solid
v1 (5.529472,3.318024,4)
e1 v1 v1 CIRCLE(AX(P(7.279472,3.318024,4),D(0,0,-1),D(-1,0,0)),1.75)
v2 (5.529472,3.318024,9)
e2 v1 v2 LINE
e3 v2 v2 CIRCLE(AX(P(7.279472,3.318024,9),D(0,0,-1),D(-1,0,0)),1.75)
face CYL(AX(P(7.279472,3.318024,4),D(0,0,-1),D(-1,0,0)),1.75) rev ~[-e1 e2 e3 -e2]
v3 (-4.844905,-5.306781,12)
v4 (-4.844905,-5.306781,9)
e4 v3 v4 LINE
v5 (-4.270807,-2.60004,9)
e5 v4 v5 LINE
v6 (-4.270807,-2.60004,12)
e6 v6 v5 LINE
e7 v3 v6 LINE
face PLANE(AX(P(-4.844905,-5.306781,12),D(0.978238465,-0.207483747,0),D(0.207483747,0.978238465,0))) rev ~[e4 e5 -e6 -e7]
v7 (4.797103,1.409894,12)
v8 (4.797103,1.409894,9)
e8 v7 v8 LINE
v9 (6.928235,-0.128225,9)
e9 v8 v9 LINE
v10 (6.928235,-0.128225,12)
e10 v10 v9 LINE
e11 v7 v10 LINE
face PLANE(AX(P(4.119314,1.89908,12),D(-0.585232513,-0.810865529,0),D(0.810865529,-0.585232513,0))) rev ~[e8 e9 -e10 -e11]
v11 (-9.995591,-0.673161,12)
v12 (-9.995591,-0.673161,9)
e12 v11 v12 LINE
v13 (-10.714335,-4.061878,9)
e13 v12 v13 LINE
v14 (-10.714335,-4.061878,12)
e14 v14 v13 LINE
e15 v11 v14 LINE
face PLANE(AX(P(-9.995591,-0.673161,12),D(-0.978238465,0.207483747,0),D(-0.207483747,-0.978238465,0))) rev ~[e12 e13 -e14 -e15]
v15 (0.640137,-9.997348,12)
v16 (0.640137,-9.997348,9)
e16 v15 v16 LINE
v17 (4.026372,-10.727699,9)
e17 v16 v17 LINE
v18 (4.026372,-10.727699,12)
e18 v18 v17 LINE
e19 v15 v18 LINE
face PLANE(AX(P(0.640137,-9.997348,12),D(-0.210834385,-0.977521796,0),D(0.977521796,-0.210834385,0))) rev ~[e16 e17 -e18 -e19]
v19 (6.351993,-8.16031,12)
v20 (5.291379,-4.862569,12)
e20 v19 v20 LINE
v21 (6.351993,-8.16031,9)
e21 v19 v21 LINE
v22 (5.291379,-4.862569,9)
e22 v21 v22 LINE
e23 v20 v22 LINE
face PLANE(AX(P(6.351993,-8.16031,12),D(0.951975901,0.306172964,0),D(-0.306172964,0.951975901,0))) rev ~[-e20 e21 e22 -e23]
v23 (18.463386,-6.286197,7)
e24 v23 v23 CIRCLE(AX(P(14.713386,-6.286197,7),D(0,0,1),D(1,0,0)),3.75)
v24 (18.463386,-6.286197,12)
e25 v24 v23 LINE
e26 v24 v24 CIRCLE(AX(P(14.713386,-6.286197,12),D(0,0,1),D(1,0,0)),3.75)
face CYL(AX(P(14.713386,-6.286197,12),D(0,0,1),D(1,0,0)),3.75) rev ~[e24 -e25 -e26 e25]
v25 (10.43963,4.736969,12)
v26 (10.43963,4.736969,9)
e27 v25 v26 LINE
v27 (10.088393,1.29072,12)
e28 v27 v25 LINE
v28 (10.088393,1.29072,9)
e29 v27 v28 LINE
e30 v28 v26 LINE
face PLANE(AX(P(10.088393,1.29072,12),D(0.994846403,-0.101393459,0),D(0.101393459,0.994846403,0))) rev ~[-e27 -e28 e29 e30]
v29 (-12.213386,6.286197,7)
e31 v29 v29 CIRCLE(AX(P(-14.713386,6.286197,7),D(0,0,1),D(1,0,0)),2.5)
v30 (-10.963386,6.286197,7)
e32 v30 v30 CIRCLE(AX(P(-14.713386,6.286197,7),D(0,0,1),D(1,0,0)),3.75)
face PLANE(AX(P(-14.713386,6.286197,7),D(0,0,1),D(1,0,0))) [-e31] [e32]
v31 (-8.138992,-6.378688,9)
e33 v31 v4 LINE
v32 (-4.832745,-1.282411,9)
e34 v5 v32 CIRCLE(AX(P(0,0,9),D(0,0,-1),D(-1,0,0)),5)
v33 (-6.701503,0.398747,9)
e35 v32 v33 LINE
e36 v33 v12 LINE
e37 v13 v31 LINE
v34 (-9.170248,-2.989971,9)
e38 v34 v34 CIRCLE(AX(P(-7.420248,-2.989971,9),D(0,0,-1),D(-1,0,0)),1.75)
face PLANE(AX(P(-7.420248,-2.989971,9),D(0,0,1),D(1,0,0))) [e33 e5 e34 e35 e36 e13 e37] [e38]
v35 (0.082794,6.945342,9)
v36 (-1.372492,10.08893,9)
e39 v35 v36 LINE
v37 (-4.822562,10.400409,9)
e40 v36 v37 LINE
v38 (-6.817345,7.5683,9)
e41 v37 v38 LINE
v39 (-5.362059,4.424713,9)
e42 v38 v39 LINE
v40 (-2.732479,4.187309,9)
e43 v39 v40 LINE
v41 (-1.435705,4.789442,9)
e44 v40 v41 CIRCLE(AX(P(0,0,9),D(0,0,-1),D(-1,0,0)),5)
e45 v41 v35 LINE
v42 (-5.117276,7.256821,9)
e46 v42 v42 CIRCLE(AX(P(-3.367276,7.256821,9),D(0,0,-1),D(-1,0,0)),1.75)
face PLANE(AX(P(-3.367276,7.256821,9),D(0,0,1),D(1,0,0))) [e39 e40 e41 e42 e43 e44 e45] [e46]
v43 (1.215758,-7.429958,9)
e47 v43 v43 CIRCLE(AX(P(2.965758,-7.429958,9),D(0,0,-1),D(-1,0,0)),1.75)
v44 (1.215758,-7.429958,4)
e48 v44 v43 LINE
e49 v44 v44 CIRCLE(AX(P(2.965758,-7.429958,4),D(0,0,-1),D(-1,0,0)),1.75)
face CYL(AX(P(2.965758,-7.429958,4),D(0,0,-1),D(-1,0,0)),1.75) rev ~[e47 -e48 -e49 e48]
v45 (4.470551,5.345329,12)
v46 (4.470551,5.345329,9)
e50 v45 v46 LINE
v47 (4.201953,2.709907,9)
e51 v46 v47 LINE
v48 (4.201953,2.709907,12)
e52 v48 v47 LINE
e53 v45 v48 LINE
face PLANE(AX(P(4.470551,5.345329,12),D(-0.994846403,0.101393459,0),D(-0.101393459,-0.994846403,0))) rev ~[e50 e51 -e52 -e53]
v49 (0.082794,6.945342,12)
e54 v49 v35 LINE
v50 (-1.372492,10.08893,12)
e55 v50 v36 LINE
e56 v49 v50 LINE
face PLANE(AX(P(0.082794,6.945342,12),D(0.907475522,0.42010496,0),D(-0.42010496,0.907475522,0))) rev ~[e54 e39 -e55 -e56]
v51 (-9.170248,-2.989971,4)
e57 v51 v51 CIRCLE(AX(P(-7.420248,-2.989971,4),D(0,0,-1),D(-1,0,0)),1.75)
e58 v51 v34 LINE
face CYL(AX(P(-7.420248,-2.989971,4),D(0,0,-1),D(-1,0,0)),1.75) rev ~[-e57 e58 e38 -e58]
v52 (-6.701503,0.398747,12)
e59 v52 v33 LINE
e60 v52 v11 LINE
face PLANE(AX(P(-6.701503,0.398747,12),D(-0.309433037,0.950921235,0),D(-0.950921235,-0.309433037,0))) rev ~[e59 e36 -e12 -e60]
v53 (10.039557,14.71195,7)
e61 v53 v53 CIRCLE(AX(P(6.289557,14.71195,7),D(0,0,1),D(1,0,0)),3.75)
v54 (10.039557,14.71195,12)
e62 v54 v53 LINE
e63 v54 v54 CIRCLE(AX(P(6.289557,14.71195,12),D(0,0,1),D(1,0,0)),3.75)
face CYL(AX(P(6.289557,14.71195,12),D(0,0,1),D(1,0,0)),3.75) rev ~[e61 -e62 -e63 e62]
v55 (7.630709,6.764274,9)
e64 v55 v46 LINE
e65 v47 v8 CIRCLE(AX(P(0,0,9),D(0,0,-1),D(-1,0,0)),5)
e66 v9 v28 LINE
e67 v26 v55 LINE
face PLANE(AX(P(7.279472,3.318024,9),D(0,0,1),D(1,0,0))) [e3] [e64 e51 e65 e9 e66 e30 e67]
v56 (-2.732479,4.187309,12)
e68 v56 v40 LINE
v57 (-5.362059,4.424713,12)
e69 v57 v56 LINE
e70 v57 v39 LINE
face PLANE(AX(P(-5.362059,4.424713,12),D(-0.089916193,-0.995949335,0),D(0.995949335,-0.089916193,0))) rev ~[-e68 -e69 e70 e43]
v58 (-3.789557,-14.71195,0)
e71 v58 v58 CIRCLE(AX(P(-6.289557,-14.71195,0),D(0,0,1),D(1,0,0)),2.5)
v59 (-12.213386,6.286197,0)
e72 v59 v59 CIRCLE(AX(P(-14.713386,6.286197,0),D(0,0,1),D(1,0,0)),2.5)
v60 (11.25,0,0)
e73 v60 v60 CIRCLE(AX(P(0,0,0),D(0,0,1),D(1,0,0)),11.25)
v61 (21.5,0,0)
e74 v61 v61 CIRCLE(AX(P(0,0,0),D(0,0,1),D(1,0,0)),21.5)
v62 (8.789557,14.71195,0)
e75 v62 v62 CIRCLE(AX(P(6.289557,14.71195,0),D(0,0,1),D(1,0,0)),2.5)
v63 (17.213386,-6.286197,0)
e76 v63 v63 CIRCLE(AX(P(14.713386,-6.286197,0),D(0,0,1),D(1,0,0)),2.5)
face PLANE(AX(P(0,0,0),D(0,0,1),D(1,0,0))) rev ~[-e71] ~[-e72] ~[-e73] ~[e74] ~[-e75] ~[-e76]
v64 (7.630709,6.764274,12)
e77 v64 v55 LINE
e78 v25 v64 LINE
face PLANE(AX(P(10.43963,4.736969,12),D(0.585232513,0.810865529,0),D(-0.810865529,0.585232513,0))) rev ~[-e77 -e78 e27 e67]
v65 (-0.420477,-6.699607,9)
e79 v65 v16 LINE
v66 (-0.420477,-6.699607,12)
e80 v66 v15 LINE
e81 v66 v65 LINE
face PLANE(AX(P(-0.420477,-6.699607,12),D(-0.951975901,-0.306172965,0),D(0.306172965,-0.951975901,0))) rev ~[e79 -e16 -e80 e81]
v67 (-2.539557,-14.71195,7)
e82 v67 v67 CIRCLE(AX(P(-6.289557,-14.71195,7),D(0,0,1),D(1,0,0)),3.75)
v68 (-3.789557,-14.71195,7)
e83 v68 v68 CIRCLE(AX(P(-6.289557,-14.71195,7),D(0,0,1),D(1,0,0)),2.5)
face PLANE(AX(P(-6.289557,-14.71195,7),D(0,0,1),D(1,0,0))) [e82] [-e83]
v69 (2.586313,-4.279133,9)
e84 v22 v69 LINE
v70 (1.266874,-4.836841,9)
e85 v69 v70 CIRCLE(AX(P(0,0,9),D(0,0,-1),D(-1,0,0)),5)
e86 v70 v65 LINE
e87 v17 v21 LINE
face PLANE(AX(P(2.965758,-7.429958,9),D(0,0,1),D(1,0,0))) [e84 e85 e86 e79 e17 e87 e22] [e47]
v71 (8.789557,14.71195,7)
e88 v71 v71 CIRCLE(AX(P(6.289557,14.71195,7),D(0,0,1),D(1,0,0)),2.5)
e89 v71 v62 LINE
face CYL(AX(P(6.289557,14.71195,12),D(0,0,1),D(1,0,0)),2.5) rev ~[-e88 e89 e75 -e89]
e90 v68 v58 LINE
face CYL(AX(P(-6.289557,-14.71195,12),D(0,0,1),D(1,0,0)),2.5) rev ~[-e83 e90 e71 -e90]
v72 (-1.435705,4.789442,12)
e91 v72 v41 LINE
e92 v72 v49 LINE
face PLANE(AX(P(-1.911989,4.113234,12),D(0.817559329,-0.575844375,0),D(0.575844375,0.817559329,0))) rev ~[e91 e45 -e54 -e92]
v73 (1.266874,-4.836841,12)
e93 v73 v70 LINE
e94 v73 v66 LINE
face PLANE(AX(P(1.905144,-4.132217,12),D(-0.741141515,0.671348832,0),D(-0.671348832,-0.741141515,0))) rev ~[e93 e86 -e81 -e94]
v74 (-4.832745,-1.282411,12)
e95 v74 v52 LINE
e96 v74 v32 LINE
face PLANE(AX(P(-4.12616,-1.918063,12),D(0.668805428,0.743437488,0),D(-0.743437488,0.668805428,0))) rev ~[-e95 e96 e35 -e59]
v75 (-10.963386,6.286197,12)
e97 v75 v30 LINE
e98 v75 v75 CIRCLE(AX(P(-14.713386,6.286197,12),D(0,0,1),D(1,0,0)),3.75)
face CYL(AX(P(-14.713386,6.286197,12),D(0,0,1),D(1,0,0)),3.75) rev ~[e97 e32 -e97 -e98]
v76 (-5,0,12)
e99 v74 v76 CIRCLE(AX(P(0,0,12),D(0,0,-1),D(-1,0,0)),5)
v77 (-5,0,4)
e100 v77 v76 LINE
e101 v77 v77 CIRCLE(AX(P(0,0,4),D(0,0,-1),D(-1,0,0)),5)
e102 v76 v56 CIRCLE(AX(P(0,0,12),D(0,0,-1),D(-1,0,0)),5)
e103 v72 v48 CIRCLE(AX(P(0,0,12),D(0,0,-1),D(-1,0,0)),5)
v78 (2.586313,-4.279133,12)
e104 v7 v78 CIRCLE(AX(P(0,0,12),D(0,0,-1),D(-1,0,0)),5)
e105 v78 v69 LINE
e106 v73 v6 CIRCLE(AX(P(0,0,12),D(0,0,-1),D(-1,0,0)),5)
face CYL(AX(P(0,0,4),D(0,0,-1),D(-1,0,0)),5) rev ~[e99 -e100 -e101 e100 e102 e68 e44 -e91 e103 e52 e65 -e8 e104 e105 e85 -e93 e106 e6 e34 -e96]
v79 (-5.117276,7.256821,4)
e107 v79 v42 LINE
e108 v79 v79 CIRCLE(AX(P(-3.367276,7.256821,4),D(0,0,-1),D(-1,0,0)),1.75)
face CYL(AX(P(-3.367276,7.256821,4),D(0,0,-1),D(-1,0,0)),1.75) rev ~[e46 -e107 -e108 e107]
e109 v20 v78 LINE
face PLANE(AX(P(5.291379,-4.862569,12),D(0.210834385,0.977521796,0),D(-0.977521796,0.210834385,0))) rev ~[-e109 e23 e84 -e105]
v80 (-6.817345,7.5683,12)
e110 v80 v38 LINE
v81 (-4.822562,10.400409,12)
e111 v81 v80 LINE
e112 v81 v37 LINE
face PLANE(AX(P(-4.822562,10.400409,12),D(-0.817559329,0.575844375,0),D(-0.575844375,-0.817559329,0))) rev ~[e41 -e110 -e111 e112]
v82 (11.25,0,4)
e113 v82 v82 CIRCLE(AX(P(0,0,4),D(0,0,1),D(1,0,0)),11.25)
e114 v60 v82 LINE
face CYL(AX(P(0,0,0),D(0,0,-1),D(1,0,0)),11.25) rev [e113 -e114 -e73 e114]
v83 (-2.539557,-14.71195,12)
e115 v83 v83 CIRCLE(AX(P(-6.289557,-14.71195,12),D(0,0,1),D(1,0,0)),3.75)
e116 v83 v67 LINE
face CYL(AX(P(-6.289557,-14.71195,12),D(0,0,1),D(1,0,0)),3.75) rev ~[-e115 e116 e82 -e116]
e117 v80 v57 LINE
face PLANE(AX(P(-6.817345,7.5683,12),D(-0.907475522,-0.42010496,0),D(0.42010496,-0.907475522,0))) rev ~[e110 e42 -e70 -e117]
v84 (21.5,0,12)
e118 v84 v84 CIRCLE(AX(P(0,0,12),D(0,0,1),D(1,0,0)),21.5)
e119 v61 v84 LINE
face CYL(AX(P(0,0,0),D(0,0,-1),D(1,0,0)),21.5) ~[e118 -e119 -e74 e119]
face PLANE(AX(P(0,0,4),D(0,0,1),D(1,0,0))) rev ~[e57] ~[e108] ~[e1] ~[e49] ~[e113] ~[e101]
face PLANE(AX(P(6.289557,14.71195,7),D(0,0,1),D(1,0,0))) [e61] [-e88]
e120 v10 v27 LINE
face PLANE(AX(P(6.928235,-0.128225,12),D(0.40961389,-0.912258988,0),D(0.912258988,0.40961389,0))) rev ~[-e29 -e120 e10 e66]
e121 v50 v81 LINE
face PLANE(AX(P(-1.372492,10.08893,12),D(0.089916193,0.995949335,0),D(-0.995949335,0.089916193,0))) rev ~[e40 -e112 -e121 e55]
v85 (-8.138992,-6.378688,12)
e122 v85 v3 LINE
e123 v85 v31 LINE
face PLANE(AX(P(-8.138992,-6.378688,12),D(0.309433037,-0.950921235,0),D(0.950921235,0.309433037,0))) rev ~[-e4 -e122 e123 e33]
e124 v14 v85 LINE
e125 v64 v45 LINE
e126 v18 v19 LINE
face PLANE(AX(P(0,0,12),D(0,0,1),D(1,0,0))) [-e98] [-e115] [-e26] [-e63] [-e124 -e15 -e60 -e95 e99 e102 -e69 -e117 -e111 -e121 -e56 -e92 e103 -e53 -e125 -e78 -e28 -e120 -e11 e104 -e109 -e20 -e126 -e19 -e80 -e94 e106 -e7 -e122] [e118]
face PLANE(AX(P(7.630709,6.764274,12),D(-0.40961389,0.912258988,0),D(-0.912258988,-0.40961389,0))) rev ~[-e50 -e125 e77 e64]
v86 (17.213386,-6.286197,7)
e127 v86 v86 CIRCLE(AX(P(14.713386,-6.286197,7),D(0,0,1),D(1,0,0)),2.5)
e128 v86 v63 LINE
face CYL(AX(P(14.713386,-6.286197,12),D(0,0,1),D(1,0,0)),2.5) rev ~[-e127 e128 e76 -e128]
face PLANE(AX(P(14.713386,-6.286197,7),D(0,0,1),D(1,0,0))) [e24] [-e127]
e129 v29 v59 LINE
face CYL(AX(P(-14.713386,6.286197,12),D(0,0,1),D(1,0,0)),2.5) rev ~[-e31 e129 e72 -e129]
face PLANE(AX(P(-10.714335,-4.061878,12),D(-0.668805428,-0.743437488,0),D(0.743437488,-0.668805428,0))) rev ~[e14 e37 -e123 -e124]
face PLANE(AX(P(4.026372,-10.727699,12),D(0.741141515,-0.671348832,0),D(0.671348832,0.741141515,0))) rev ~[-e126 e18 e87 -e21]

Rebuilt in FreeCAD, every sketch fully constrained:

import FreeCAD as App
import Part
import Sketcher
Q = App.Units.Quantity


def add_polygon(sketch, points):
    """Adds a closed chain of lines whose ends are joined by coincident constraints."""
    first, n = sketch.GeometryCount, len(points)
    for a, b in zip(points, points[1:] + points[:1]):
        sketch.addGeometry(Part.LineSegment(App.Vector(*a, 0), App.Vector(*b, 0)), False)
    for i in range(n):
        sketch.addConstraint(Sketcher.Constraint("Coincident", first + i, 2, first + (i + 1) % n, 1))

doc = App.newDocument("Part")
body = doc.addObject("PartDesign::Body", "Body")

# Sketch on XY plane
sketch1 = doc.addObject("Sketcher::SketchObject", "Sketch")
body.addObject(sketch1)
sketch1.AttachmentSupport = (doc.XY_Plane, [""])
sketch1.MapMode = "FlatFace"
sketch1.addGeometry([
    Part.Circle(App.Vector(0, 0, 0), App.Vector(0, 0, 1), 22),
    Part.Circle(App.Vector(0, 0, 0), App.Vector(0, 0, 1), 11),
], False)
sketch1.addConstraint([
    Sketcher.Constraint("Coincident", 0, 3, -1, 1),
    Sketcher.Constraint("Coincident", 1, 3, -1, 1),
    Sketcher.Constraint("Diameter", 0, Q("43 mm")),
    Sketcher.Constraint("Diameter", 1, Q("22.5 mm")),
])
pad1 = doc.addObject("PartDesign::Pad", "Pad")
body.addObject(pad1)
pad1.Profile = sketch1
pad1.Length = 12

# Sketch on XY plane
sketch2 = doc.addObject("Sketcher::SketchObject", "Sketch001")
body.addObject(sketch2)
sketch2.AttachmentSupport = (doc.XY_Plane, [""])
sketch2.MapMode = "FlatFace"
sketch2.AttachmentOffset = App.Placement(App.Vector(0, 0, 12), App.Rotation())
sketch2.addGeometry([
    Part.Circle(App.Vector(-14.7, 6.3, 0), App.Vector(0, 0, 1), 2.5),
    Part.Circle(App.Vector(6.3, 14.7, 0), App.Vector(0, 0, 1), 2.5),
    Part.Circle(App.Vector(14.7, -6.3, 0), App.Vector(0, 0, 1), 2.5),
    Part.Circle(App.Vector(-6.3, -14.7, 0), App.Vector(0, 0, 1), 2.5),
], False)
sketch2.addConstraint([
    Sketcher.Constraint("Equal", 0, 1),
    Sketcher.Constraint("Equal", 1, 2),
    Sketcher.Constraint("Equal", 2, 3),
    Sketcher.Constraint("Symmetric", 0, 3, 2, 3, -1, 1),
    Sketcher.Constraint("Symmetric", 1, 3, 3, 3, -1, 1),
    Sketcher.Constraint("Diameter", 0, Q("5 mm")),
    Sketcher.Constraint("DistanceY", 3, 3, 1, 3, Q("29.4239 mm")),
    Sketcher.Constraint("DistanceX", 1, 3, 2, 3, Q("8.423829 mm")),
    Sketcher.Constraint("DistanceX", 0, 3, 2, 3, Q("29.426772 mm")),
    Sketcher.Constraint("DistanceY", -1, 1, 0, 3, Q("6.286197 mm")),
])
pocket1 = doc.addObject("PartDesign::Pocket", "Pocket")
body.addObject(pocket1)
pocket1.Profile = sketch2
pocket1.Type = "ThroughAll"

# Sketch on XY plane
sketch3 = doc.addObject("Sketcher::SketchObject", "Sketch002")
body.addObject(sketch3)
sketch3.AttachmentSupport = (doc.XY_Plane, [""])
sketch3.MapMode = "FlatFace"
sketch3.AttachmentOffset = App.Placement(App.Vector(0, 0, 12), App.Rotation())
sketch3.addGeometry([
    Part.Circle(App.Vector(-6.3, -14.7, 0), App.Vector(0, 0, 1), 3.8),
    Part.Circle(App.Vector(14.7, -6.3, 0), App.Vector(0, 0, 1), 3.8),
    Part.Circle(App.Vector(6.3, 14.7, 0), App.Vector(0, 0, 1), 3.8),
    Part.Circle(App.Vector(-14.7, 6.3, 0), App.Vector(0, 0, 1), 3.8),
], False)
sketch3.addConstraint([
    Sketcher.Constraint("Equal", 0, 1),
    Sketcher.Constraint("Equal", 1, 2),
    Sketcher.Constraint("Equal", 2, 3),
    Sketcher.Constraint("Symmetric", 0, 3, 2, 3, -1, 1),
    Sketcher.Constraint("Symmetric", 1, 3, 3, 3, -1, 1),
    Sketcher.Constraint("Diameter", 0, Q("7.5 mm")),
    Sketcher.Constraint("DistanceY", 0, 3, 2, 3, Q("29.4239 mm")),
    Sketcher.Constraint("DistanceX", 2, 3, 1, 3, Q("8.423829 mm")),
    Sketcher.Constraint("DistanceX", 3, 3, 1, 3, Q("29.426772 mm")),
    Sketcher.Constraint("DistanceY", 1, 3, -1, 1, Q("6.286197 mm")),
])
pocket2 = doc.addObject("PartDesign::Pocket", "Pocket001")
body.addObject(pocket2)
pocket2.Profile = sketch3
pocket2.Length = 5

# Sketch on XY plane
sketch4 = doc.addObject("Sketcher::SketchObject", "Sketch003")
body.addObject(sketch4)
sketch4.AttachmentSupport = (doc.XY_Plane, [""])
sketch4.MapMode = "FlatFace"
sketch4.AttachmentOffset = App.Placement(App.Vector(0, 0, 4), App.Rotation())
sketch4.addGeometry(Part.Circle(App.Vector(0, 0, 0), App.Vector(0, 0, 1), 11), False)
sketch4.addConstraint([
    Sketcher.Constraint("Coincident", 0, 3, -1, 1),
    Sketcher.Constraint("Diameter", 0, Q("22.5 mm")),
])
pad2 = doc.addObject("PartDesign::Pad", "Pad001")
body.addObject(pad2)
pad2.Profile = sketch4
pad2.Length = 8

# Sketch on XY plane
sketch5 = doc.addObject("Sketcher::SketchObject", "Sketch004")
body.addObject(sketch5)
sketch5.AttachmentSupport = (doc.XY_Plane, [""])
sketch5.MapMode = "FlatFace"
sketch5.AttachmentOffset = App.Placement(App.Vector(0, 0, 4), App.Rotation())
sketch5.addGeometry(Part.Circle(App.Vector(0, 0, 0), App.Vector(0, 0, 1), 5), False)
sketch5.addConstraint([
    Sketcher.Constraint("Coincident", 0, 3, -1, 1),
    Sketcher.Constraint("Diameter", 0, Q("10 mm")),
])
pocket3 = doc.addObject("PartDesign::Pocket", "Pocket002")
body.addObject(pocket3)
pocket3.Profile = sketch5
pocket3.Length = 50
pocket3.Reversed = True

# Sketch on XY plane
sketch6 = doc.addObject("Sketcher::SketchObject", "Sketch005")
body.addObject(sketch6)
sketch6.AttachmentSupport = (doc.XY_Plane, [""])
sketch6.MapMode = "FlatFace"
sketch6.AttachmentOffset = App.Placement(App.Vector(0, 0, 4), App.Rotation())
sketch6.addGeometry([
    Part.Circle(App.Vector(-7.4, -3, 0), App.Vector(0, 0, 1), 1.8),
    Part.Circle(App.Vector(3, -7.4, 0), App.Vector(0, 0, 1), 1.8),
    Part.Circle(App.Vector(7.3, 3.3, 0), App.Vector(0, 0, 1), 1.8),
    Part.Circle(App.Vector(-3.4, 7.3, 0), App.Vector(0, 0, 1), 1.8),
], False)
sketch6.addConstraint([
    Sketcher.Constraint("Equal", 0, 1),
    Sketcher.Constraint("Equal", 1, 2),
    Sketcher.Constraint("Equal", 2, 3),
    Sketcher.Constraint("Diameter", 0, Q("3.5 mm")),
    Sketcher.Constraint("DistanceY", 0, 3, -1, 1, Q("2.989971 mm")),
    Sketcher.Constraint("DistanceX", -1, 1, 1, 3, Q("2.965758 mm")),
    Sketcher.Constraint("DistanceY", 1, 3, -1, 1, Q("7.429958 mm")),
    Sketcher.Constraint("DistanceY", -1, 1, 3, 3, Q("7.256821 mm")),
    Sketcher.Constraint("DistanceX", 0, 3, 2, 3, Q("14.69972 mm")),
    Sketcher.Constraint("DistanceX", 0, 3, 3, 3, Q("4.052972 mm")),
    Sketcher.Constraint("DistanceX", 0, 3, -1, 1, Q("7.420248 mm")),
    Sketcher.Constraint("DistanceY", -1, 1, 2, 3, Q("3.318024 mm")),
])
pocket4 = doc.addObject("PartDesign::Pocket", "Pocket003")
body.addObject(pocket4)
pocket4.Profile = sketch6
pocket4.Length = 11
pocket4.Reversed = True

# Sketch on XY plane
sketch7 = doc.addObject("Sketcher::SketchObject", "Sketch006")
body.addObject(sketch7)
sketch7.AttachmentSupport = (doc.XY_Plane, [""])
sketch7.MapMode = "FlatFace"
sketch7.AttachmentOffset = App.Placement(App.Vector(0, 0, 12), App.Rotation())
add_polygon(sketch7, [(-6.817345, 7.5683), (-5.362059, 4.424713), (-1.911989, 4.113234), (0.082794, 6.945342), (-1.372492, 10.08893), (-4.822562, 10.400409)])  # lines 0-5
add_polygon(sketch7, [(7.630709, 6.764274), (4.470551, 5.345329), (4.119314, 1.89908), (6.928235, -0.128225), (10.088393, 1.29072), (10.43963, 4.736969)])  # lines 6-11
add_polygon(sketch7, [(6.351993, -8.16031), (5.291379, -4.862569), (1.905144, -4.132217), (-0.420477, -6.699607), (0.640137, -9.997348), (4.026372, -10.727699)])  # lines 12-17
add_polygon(sketch7, [(-6.701503, 0.398747), (-9.995591, -0.673161), (-10.714335, -4.061878), (-8.138992, -6.378688), (-4.844905, -5.306781), (-4.12616, -1.918063)])  # lines 18-23
sketch7.addConstraint([
    Sketcher.Constraint("Distance", 0, Q("3.464102 mm")),
    Sketcher.Constraint("Distance", 1, Q("3.464102 mm")),
    Sketcher.Constraint("Distance", 2, Q("3.464102 mm")),
    Sketcher.Constraint("Distance", 3, Q("3.464102 mm")),
    Sketcher.Constraint("Distance", 4, Q("3.464102 mm")),
    Sketcher.Constraint("Distance", 5, Q("3.464102 mm")),
    Sketcher.Constraint("Distance", 6, Q("3.464102 mm")),
    Sketcher.Constraint("Distance", 7, Q("3.464102 mm")),
    Sketcher.Constraint("Distance", 8, Q("3.464102 mm")),
    Sketcher.Constraint("Distance", 9, Q("3.464102 mm")),
    Sketcher.Constraint("Distance", 10, Q("3.464102 mm")),
    Sketcher.Constraint("Distance", 11, Q("3.464102 mm")),
    Sketcher.Constraint("Distance", 12, Q("3.464102 mm")),
    Sketcher.Constraint("Distance", 13, Q("3.464102 mm")),
    Sketcher.Constraint("Distance", 14, Q("3.464102 mm")),
    Sketcher.Constraint("Distance", 15, Q("3.464102 mm")),
    Sketcher.Constraint("Distance", 16, Q("3.464102 mm")),
    Sketcher.Constraint("Distance", 17, Q("3.464102 mm")),
    Sketcher.Constraint("Distance", 18, Q("3.464102 mm")),
    Sketcher.Constraint("Distance", 19, Q("3.464102 mm")),
    Sketcher.Constraint("Distance", 20, Q("3.464102 mm")),
    Sketcher.Constraint("Distance", 21, Q("3.464102 mm")),
    Sketcher.Constraint("Distance", 22, Q("3.464102 mm")),
    Sketcher.Constraint("Distance", 23, Q("3.464102 mm")),
    Sketcher.Constraint("DistanceY", -1, 1, 5, 2, Q("7.5683 mm")),
    Sketcher.Constraint("DistanceY", 16, 2, -1, 1, Q("10.727699 mm")),
    Sketcher.Constraint("DistanceY", 6, 2, 3, 2, Q("4.743601 mm")),
    Sketcher.Constraint("DistanceX", 2, 2, 9, 2, Q("10.005599 mm")),
    Sketcher.Constraint("DistanceY", 8, 2, 11, 2, Q("6.892498 mm")),
    Sketcher.Constraint("DistanceY", 12, 2, 6, 2, Q("10.207898 mm")),
    Sketcher.Constraint("DistanceX", 18, 2, 1, 2, Q("8.083601 mm")),
    Sketcher.Constraint("DistanceX", 18, 2, 20, 2, Q("1.856598 mm")),
    Sketcher.Constraint("DistanceX", 23, 2, 21, 2, Q("1.856598 mm")),
    Sketcher.Constraint("DistanceX", 0, 2, -1, 1, Q("5.362059 mm")),
    Sketcher.Constraint("DistanceX", 1, 2, -1, 1, Q("1.911989 mm")),
    Sketcher.Constraint("DistanceY", -1, 1, 3, 2, Q("10.08893 mm")),
    Sketcher.Constraint("DistanceX", 4, 2, -1, 1, Q("4.822562 mm")),
    Sketcher.Constraint("DistanceY", -1, 1, 4, 2, Q("10.400409 mm")),
    Sketcher.Constraint("DistanceX", -1, 1, 6, 2, Q("4.470551 mm")),
    Sketcher.Constraint("DistanceY", -1, 1, 7, 2, Q("1.89908 mm")),
    Sketcher.Constraint("DistanceY", -1, 1, 9, 2, Q("1.29072 mm")),
    Sketcher.Constraint("DistanceX", -1, 1, 12, 2, Q("5.291379 mm")),
    Sketcher.Constraint("DistanceY", 17, 2, -1, 1, Q("8.16031 mm")),
    Sketcher.Constraint("DistanceY", 18, 2, -1, 1, Q("0.673161 mm")),
    Sketcher.Constraint("DistanceY", 19, 2, -1, 1, Q("4.061878 mm")),
    Sketcher.Constraint("DistanceY", 21, 2, -1, 1, Q("5.306781 mm")),
    Sketcher.Constraint("DistanceY", 12, 2, 13, 2, Q("0.730352 mm")),
    Sketcher.Constraint("DistanceX", 14, 2, 13, 2, Q("2.325621 mm")),
])
pocket5 = doc.addObject("PartDesign::Pocket", "Pocket004")
body.addObject(pocket5)
pocket5.Profile = sketch7
pocket5.Length = 3

doc.recompute()
